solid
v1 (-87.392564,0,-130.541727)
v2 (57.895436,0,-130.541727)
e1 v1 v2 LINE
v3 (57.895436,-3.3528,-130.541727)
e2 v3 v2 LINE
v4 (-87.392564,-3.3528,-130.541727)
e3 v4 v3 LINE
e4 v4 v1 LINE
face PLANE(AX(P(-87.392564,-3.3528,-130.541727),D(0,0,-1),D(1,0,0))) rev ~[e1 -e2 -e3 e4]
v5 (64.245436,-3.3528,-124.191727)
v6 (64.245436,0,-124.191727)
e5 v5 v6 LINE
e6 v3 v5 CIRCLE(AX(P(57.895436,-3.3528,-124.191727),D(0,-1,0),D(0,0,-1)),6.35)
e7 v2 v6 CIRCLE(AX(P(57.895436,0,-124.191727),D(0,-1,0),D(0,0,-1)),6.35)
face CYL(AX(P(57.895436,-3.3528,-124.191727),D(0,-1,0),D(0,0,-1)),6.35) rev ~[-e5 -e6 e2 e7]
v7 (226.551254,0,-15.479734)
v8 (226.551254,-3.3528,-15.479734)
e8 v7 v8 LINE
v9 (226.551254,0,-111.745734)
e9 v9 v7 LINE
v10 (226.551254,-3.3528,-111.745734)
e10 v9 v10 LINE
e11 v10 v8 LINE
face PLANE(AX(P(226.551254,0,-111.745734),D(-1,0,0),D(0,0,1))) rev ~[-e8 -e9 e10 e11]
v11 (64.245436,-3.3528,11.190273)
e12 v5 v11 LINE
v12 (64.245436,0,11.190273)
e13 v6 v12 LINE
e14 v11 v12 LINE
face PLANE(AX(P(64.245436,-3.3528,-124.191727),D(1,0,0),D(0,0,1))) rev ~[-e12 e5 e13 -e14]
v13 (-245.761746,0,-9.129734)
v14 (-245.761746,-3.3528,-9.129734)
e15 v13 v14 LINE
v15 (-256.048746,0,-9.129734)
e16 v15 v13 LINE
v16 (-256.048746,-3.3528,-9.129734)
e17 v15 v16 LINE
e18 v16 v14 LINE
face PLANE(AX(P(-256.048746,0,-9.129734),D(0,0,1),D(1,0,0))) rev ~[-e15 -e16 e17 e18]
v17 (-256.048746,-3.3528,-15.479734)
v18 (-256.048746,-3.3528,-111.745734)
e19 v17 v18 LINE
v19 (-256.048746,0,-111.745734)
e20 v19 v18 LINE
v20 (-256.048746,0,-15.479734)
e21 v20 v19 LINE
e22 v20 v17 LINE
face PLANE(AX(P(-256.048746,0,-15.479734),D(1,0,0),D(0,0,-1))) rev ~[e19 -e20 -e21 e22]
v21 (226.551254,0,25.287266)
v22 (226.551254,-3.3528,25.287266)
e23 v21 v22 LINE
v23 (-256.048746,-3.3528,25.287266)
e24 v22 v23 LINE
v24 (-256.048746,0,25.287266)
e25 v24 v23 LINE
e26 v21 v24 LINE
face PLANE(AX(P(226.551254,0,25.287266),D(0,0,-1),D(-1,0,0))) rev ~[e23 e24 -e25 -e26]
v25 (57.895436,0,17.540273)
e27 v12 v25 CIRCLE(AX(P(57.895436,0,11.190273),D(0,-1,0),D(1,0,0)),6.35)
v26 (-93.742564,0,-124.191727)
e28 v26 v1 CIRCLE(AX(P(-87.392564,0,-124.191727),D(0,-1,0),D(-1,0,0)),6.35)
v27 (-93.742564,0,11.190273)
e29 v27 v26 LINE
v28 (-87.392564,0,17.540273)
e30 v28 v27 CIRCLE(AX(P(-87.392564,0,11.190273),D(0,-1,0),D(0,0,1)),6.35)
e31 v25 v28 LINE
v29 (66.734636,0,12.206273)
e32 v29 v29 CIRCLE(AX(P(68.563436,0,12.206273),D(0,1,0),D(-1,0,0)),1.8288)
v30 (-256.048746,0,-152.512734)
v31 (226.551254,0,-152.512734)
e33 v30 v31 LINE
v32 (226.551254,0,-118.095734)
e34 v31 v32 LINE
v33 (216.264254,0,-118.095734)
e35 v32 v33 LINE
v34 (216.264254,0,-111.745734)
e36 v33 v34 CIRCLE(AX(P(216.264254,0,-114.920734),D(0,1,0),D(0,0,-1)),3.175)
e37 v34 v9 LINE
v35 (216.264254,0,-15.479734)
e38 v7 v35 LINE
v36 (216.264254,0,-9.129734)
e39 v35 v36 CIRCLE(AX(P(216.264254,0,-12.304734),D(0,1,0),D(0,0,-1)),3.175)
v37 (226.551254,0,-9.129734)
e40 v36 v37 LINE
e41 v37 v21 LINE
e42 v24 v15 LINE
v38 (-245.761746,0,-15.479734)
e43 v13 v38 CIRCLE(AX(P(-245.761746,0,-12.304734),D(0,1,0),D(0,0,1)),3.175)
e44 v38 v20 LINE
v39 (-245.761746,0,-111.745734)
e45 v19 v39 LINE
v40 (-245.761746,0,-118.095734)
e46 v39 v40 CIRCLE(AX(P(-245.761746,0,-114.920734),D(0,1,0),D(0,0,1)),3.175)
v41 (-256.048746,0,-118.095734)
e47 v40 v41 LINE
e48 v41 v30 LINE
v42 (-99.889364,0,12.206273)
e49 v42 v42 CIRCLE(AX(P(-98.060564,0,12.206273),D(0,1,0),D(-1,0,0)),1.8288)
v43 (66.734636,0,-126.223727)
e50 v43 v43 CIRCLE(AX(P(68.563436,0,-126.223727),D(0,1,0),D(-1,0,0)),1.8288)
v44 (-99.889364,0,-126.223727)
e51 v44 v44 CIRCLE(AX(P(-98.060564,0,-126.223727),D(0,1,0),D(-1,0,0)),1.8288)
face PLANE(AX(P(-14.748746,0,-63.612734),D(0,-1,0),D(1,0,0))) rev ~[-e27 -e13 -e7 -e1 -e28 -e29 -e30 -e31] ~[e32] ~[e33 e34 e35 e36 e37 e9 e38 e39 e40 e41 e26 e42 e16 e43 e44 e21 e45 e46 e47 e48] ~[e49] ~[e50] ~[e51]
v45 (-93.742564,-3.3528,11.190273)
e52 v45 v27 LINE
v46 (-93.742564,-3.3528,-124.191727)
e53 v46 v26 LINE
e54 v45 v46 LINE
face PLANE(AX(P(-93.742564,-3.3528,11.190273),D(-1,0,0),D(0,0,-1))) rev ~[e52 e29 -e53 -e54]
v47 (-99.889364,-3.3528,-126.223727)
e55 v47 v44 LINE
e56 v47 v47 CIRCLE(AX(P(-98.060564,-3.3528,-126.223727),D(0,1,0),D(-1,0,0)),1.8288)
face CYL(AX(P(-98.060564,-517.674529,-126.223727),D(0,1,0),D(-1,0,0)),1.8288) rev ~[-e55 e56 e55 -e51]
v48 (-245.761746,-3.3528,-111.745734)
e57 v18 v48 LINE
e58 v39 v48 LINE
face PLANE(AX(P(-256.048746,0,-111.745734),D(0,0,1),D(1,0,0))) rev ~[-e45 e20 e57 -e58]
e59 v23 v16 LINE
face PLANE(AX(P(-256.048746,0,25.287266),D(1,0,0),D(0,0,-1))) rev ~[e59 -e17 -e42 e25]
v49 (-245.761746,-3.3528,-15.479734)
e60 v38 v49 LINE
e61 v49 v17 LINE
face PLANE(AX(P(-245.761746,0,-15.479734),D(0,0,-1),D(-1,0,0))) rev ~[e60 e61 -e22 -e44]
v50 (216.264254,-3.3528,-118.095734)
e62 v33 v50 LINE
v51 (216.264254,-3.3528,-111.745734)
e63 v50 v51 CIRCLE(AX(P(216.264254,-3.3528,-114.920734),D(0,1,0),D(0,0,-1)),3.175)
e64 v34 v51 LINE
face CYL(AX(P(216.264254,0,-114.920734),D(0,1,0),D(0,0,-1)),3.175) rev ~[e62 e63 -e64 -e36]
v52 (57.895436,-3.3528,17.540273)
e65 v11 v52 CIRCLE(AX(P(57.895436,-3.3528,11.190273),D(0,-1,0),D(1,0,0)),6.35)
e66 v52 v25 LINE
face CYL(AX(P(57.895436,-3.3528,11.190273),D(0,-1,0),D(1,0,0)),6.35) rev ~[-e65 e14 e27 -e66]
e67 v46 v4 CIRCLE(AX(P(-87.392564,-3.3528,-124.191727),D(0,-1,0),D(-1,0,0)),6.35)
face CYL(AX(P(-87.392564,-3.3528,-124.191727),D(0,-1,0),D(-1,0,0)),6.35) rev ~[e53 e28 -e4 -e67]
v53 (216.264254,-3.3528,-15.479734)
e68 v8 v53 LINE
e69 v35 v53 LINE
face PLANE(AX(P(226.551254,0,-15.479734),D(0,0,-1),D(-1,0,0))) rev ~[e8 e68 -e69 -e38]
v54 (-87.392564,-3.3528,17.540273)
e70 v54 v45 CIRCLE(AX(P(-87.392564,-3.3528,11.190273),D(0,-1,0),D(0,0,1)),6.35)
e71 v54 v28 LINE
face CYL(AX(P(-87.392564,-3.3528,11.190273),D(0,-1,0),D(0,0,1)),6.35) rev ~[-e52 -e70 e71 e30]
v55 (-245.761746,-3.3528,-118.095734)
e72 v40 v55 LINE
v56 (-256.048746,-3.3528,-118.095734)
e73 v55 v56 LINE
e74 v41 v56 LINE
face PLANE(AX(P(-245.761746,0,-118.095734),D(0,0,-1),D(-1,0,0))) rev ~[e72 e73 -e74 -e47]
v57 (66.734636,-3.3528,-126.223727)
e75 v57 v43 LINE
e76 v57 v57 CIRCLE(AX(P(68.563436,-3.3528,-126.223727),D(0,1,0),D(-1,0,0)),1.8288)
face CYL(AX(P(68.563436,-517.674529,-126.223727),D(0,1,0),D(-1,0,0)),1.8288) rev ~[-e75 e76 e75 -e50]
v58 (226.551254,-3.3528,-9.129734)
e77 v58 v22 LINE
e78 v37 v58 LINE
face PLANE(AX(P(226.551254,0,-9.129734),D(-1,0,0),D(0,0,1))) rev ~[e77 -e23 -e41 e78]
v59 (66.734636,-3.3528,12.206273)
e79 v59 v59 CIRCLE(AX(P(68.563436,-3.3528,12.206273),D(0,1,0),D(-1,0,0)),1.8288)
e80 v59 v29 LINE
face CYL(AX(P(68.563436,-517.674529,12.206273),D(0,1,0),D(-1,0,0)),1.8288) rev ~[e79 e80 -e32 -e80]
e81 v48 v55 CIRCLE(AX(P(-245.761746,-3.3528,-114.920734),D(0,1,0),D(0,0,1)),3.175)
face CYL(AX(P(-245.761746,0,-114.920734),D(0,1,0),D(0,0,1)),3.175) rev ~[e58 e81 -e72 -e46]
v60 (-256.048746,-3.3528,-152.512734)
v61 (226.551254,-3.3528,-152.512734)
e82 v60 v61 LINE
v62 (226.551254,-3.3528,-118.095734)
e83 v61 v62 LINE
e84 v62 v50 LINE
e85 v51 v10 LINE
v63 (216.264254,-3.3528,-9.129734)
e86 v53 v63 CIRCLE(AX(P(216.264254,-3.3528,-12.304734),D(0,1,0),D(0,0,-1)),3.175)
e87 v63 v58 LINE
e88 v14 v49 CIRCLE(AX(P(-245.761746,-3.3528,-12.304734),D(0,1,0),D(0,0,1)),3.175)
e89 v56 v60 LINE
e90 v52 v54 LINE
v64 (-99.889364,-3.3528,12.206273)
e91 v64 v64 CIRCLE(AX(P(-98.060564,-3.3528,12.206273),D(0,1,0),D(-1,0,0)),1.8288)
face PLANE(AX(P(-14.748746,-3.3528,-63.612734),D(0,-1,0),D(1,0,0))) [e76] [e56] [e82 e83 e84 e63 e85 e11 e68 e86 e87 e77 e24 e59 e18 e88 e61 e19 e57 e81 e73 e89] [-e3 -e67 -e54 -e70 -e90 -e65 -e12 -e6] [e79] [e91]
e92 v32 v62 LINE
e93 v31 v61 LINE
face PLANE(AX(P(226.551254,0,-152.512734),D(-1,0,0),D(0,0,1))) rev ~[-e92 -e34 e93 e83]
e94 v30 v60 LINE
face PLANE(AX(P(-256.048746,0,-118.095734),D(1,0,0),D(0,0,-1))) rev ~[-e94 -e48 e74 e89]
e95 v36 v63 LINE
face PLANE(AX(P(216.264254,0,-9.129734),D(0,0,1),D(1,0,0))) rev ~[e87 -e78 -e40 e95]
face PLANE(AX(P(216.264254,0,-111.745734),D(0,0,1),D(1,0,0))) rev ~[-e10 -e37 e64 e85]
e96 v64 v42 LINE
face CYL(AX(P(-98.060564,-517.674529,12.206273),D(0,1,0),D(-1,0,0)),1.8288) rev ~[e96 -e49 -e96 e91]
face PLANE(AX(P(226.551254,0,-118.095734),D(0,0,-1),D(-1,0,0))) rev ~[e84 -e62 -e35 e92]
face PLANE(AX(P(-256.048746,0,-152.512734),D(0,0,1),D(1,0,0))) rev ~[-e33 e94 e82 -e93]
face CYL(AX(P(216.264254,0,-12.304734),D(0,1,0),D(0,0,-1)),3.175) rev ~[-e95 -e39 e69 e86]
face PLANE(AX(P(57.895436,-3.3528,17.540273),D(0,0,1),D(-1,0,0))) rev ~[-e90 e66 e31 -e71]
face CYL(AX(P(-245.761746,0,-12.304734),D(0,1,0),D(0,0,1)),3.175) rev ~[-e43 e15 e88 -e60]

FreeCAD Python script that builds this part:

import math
import FreeCAD as App
import Part
import Sketcher
from FreeCAD import Vector
Q = App.Units.Quantity

doc = App.newDocument("Part")
body = doc.addObject("PartDesign::Body", "Body")

# Sketch on XZ plane
sketch1 = body.newObject("Sketcher::SketchObject", "Sketch")
sketch1.AttachmentSupport = (doc.getObject("XZ_Plane"), [""])
sketch1.MapMode = "FlatFace"
sketch1.addGeometry([
    Part.LineSegment(Vector(-256, -118.1, 0), Vector(-256, -152.5, 0)),  # 0
    Part.LineSegment(Vector(-256, -152.5, 0), Vector(226.6, -152.5, 0)),  # 1
    Part.LineSegment(Vector(226.6, -152.5, 0), Vector(226.6, -118.1, 0)),  # 2
    Part.LineSegment(Vector(226.6, -118.1, 0), Vector(216.3, -118.1, 0)),  # 3
    Part.ArcOfCircle(Part.Circle(Vector(216.3, -114.9, 0), Vector(0, 0, 1), 3.2), math.radians(90), math.radians(270)),  # 4
    Part.LineSegment(Vector(216.3, -111.7, 0), Vector(226.6, -111.7, 0)),  # 5
    Part.LineSegment(Vector(226.6, -111.7, 0), Vector(226.6, -15.5, 0)),  # 6
    Part.LineSegment(Vector(226.6, -15.5, 0), Vector(216.3, -15.5, 0)),  # 7
    Part.ArcOfCircle(Part.Circle(Vector(216.3, -12.3, 0), Vector(0, 0, 1), 3.2), math.radians(90), math.radians(270)),  # 8
    Part.LineSegment(Vector(216.3, -9.1, 0), Vector(226.6, -9.1, 0)),  # 9
    Part.LineSegment(Vector(226.6, -9.1, 0), Vector(226.6, 25.3, 0)),  # 10
    Part.LineSegment(Vector(226.6, 25.3, 0), Vector(-256, 25.3, 0)),  # 11
    Part.LineSegment(Vector(-256, 25.3, 0), Vector(-256, -9.1, 0)),  # 12
    Part.LineSegment(Vector(-256, -9.1, 0), Vector(-245.8, -9.1, 0)),  # 13
    Part.ArcOfCircle(Part.Circle(Vector(-245.8, -12.3, 0), Vector(0, 0, 1), 3.2), math.radians(-90), math.radians(90)),  # 14
    Part.LineSegment(Vector(-245.8, -15.5, 0), Vector(-256, -15.5, 0)),  # 15
    Part.LineSegment(Vector(-256, -15.5, 0), Vector(-256, -111.7, 0)),  # 16
    Part.LineSegment(Vector(-256, -111.7, 0), Vector(-245.8, -111.7, 0)),  # 17
    Part.ArcOfCircle(Part.Circle(Vector(-245.8, -114.9, 0), Vector(0, 0, 1), 3.2), math.radians(-90), math.radians(90)),  # 18
    Part.LineSegment(Vector(-245.8, -118.1, 0), Vector(-256, -118.1, 0)),  # 19
], False)
sketch1.addConstraint([
    Sketcher.Constraint("Coincident", 0, 2, 1, 1),
    Sketcher.Constraint("Coincident", 1, 2, 2, 1),
    Sketcher.Constraint("Coincident", 2, 2, 3, 1),
    Sketcher.Constraint("Tangent", 3, 2, 4, 2),
    Sketcher.Constraint("Tangent", 4, 1, 5, 1),
    Sketcher.Constraint("Coincident", 5, 2, 6, 1),
    Sketcher.Constraint("Coincident", 6, 2, 7, 1),
    Sketcher.Constraint("Tangent", 7, 2, 8, 2),
    Sketcher.Constraint("Tangent", 8, 1, 9, 1),
    Sketcher.Constraint("Coincident", 9, 2, 10, 1),
    Sketcher.Constraint("Coincident", 10, 2, 11, 1),
    Sketcher.Constraint("Coincident", 11, 2, 12, 1),
    Sketcher.Constraint("Coincident", 12, 2, 13, 1),
    Sketcher.Constraint("Tangent", 13, 2, 14, 2),
    Sketcher.Constraint("Tangent", 14, 1, 15, 1),
    Sketcher.Constraint("Coincident", 15, 2, 16, 1),
    Sketcher.Constraint("Coincident", 16, 2, 17, 1),
    Sketcher.Constraint("Tangent", 17, 2, 18, 2),
    Sketcher.Constraint("Tangent", 18, 1, 19, 1),
    Sketcher.Constraint("Coincident", 19, 2, 0, 1),
    Sketcher.Constraint("Vertical", 0),
    Sketcher.Constraint("Horizontal", 1),
    Sketcher.Constraint("Vertical", 2),
    Sketcher.Constraint("Horizontal", 3),
    Sketcher.Constraint("Horizontal", 5),
    Sketcher.Constraint("Vertical", 6),
    Sketcher.Constraint("Horizontal", 7),
    Sketcher.Constraint("Horizontal", 9),
    Sketcher.Constraint("Vertical", 10),
    Sketcher.Constraint("Horizontal", 11),
    Sketcher.Constraint("Vertical", 12),
    Sketcher.Constraint("Horizontal", 13),
    Sketcher.Constraint("Horizontal", 15),
    Sketcher.Constraint("Vertical", 16),
    Sketcher.Constraint("Horizontal", 17),
    Sketcher.Constraint("Horizontal", 19),
    Sketcher.Constraint("Equal", 4, 8),
    Sketcher.Constraint("Equal", 8, 14),
    Sketcher.Constraint("Equal", 14, 18),
    Sketcher.Constraint("Horizontal", 8, 3, 14, 3),
    Sketcher.Constraint("Horizontal", 4, 3, 18, 3),
    Sketcher.Constraint("Vertical", 4, 3, 8, 3),
    Sketcher.Constraint("Vertical", 14, 3, 18, 3),
    Sketcher.Constraint("Vertical", 2, 2, 5, 2),
    Sketcher.Constraint("Vertical", 6, 2, 9, 2),
    Sketcher.Constraint("Vertical", 0, 2, 11, 2),
    Sketcher.Constraint("Vertical", 12, 2, 15, 2),
    Sketcher.Constraint("Equal", 9, 13),
    Sketcher.Constraint("Equal", 2, 10),
    Sketcher.Constraint("DistanceX", 1, 1, 1, 2, Q("19 in")),
    Sketcher.Constraint("Radius", 4, Q("0.125 in")),
    Sketcher.Constraint("DistanceY", 0, 2, 11, 2, Q("7 in")),
    Sketcher.Constraint("DistanceY", 6, 1, 6, 2, Q("3.79 in")),
    Sketcher.Constraint("DistanceX", 3, 2, 3, 1, Q("0.405 in")),
    Sketcher.Constraint("DistanceX", -1, 1, 4, 3, 216.264254),
    Sketcher.Constraint("DistanceY", 4, 3, -1, 1, 114.920734),
])
pad1 = body.newObject("PartDesign::Pad", "Pad")
pad1.Profile = sketch1
pad1.Length = Q("0.132 in")

# Sketch on XZ plane
sketch2 = body.newObject("Sketcher::SketchObject", "Sketch001")
sketch2.AttachmentSupport = (doc.getObject("XZ_Plane"), [""])
sketch2.MapMode = "FlatFace"
sketch2.AttachmentOffset = App.Placement(Vector(0, 0, 0.132 * 25.4), App.Rotation())
sketch2.addGeometry([
    Part.ArcOfCircle(Part.Circle(Vector(58, 11, 0), Vector(0, 0, 1), 6), math.radians(0), math.radians(90)),  # 0
    Part.LineSegment(Vector(58, 18, 0), Vector(-87, 18, 0)),  # 1
    Part.ArcOfCircle(Part.Circle(Vector(-87, 11, 0), Vector(0, 0, 1), 6), math.radians(90), math.radians(180)),  # 2
    Part.LineSegment(Vector(-94, 11, 0), Vector(-94, -124, 0)),  # 3
    Part.ArcOfCircle(Part.Circle(Vector(-87, -124, 0), Vector(0, 0, 1), 6), math.radians(180), math.radians(270)),  # 4
    Part.LineSegment(Vector(-87, -131, 0), Vector(58, -131, 0)),  # 5
    Part.ArcOfCircle(Part.Circle(Vector(58, -124, 0), Vector(0, 0, 1), 6), math.radians(-90), math.radians(0)),  # 6
    Part.LineSegment(Vector(64, -124, 0), Vector(64, 11, 0)),  # 7
], False)
sketch2.addConstraint([
    Sketcher.Constraint("Tangent", 0, 2, 1, 1),
    Sketcher.Constraint("Tangent", 1, 2, 2, 1),
    Sketcher.Constraint("Tangent", 2, 2, 3, 1),
    Sketcher.Constraint("Tangent", 3, 2, 4, 1),
    Sketcher.Constraint("Tangent", 4, 2, 5, 1),
    Sketcher.Constraint("Tangent", 5, 2, 6, 1),
    Sketcher.Constraint("Tangent", 6, 2, 7, 1),
    Sketcher.Constraint("Tangent", 7, 2, 0, 1),
    Sketcher.Constraint("Horizontal", 1),
    Sketcher.Constraint("Vertical", 3),
    Sketcher.Constraint("Horizontal", 5),
    Sketcher.Constraint("Vertical", 7),
    Sketcher.Constraint("Equal", 0, 2),
    Sketcher.Constraint("Equal", 2, 4),
    Sketcher.Constraint("Equal", 4, 6),
    Sketcher.Constraint("Radius", 0, Q("0.25 in")),
    Sketcher.Constraint("DistanceX", 1, 2, 1, 1, Q("5.72 in")),
    Sketcher.Constraint("DistanceY", 3, 2, 3, 1, Q("5.33 in")),
    Sketcher.Constraint("DistanceX", -1, 1, 0, 3, 57.895436),
    Sketcher.Constraint("DistanceY", -1, 1, 0, 3, 11.190273),
])
pocket1 = body.newObject("PartDesign::Pocket", "Pocket")
pocket1.Profile = sketch2
pocket1.Type = "ThroughAll"

# Sketch on XZ plane
sketch3 = body.newObject("Sketcher::SketchObject", "Sketch002")
sketch3.AttachmentSupport = (doc.getObject("XZ_Plane"), [""])
sketch3.MapMode = "FlatFace"
sketch3.AttachmentOffset = App.Placement(Vector(0, 0, 0.132 * 25.4), App.Rotation())
sketch3.addGeometry([
    Part.Circle(Vector(-98.1, -126.2, 0), Vector(0, 0, 1), 1.8),
    Part.Circle(Vector(68.6, -126.2, 0), Vector(0, 0, 1), 1.8),
    Part.Circle(Vector(68.6, 12.2, 0), Vector(0, 0, 1), 1.8),
    Part.Circle(Vector(-98.1, 12.2, 0), Vector(0, 0, 1), 1.8),
], False)
sketch3.addConstraint([
    Sketcher.Constraint("Equal", 0, 1),
    Sketcher.Constraint("Equal", 1, 2),
    Sketcher.Constraint("Equal", 2, 3),
    Sketcher.Constraint("Horizontal", 0, 3, 1, 3),
    Sketcher.Constraint("Horizontal", 2, 3, 3, 3),
    Sketcher.Constraint("Vertical", 1, 3, 2, 3),
    Sketcher.Constraint("Vertical", 0, 3, 3, 3),
    Sketcher.Constraint("Diameter", 0, Q("0.144 in")),
    Sketcher.Constraint("DistanceX", 0, 3, 1, 3, Q("6.56 in")),
    Sketcher.Constraint("DistanceY", 1, 3, 2, 3, Q("5.45 in")),
    Sketcher.Constraint("DistanceX", 0, 3, -1, 1, 98.060564),
    Sketcher.Constraint("DistanceY", 0, 3, -1, 1, 126.223727),
])
doc.recompute()
hole = body.newObject("PartDesign::Hole", "Hole")
hole.Profile = sketch3
hole.ThreadType = "None"
hole.Diameter = Q("0.144 in")
hole.DepthType = "ThroughAll"

doc.recompute()
